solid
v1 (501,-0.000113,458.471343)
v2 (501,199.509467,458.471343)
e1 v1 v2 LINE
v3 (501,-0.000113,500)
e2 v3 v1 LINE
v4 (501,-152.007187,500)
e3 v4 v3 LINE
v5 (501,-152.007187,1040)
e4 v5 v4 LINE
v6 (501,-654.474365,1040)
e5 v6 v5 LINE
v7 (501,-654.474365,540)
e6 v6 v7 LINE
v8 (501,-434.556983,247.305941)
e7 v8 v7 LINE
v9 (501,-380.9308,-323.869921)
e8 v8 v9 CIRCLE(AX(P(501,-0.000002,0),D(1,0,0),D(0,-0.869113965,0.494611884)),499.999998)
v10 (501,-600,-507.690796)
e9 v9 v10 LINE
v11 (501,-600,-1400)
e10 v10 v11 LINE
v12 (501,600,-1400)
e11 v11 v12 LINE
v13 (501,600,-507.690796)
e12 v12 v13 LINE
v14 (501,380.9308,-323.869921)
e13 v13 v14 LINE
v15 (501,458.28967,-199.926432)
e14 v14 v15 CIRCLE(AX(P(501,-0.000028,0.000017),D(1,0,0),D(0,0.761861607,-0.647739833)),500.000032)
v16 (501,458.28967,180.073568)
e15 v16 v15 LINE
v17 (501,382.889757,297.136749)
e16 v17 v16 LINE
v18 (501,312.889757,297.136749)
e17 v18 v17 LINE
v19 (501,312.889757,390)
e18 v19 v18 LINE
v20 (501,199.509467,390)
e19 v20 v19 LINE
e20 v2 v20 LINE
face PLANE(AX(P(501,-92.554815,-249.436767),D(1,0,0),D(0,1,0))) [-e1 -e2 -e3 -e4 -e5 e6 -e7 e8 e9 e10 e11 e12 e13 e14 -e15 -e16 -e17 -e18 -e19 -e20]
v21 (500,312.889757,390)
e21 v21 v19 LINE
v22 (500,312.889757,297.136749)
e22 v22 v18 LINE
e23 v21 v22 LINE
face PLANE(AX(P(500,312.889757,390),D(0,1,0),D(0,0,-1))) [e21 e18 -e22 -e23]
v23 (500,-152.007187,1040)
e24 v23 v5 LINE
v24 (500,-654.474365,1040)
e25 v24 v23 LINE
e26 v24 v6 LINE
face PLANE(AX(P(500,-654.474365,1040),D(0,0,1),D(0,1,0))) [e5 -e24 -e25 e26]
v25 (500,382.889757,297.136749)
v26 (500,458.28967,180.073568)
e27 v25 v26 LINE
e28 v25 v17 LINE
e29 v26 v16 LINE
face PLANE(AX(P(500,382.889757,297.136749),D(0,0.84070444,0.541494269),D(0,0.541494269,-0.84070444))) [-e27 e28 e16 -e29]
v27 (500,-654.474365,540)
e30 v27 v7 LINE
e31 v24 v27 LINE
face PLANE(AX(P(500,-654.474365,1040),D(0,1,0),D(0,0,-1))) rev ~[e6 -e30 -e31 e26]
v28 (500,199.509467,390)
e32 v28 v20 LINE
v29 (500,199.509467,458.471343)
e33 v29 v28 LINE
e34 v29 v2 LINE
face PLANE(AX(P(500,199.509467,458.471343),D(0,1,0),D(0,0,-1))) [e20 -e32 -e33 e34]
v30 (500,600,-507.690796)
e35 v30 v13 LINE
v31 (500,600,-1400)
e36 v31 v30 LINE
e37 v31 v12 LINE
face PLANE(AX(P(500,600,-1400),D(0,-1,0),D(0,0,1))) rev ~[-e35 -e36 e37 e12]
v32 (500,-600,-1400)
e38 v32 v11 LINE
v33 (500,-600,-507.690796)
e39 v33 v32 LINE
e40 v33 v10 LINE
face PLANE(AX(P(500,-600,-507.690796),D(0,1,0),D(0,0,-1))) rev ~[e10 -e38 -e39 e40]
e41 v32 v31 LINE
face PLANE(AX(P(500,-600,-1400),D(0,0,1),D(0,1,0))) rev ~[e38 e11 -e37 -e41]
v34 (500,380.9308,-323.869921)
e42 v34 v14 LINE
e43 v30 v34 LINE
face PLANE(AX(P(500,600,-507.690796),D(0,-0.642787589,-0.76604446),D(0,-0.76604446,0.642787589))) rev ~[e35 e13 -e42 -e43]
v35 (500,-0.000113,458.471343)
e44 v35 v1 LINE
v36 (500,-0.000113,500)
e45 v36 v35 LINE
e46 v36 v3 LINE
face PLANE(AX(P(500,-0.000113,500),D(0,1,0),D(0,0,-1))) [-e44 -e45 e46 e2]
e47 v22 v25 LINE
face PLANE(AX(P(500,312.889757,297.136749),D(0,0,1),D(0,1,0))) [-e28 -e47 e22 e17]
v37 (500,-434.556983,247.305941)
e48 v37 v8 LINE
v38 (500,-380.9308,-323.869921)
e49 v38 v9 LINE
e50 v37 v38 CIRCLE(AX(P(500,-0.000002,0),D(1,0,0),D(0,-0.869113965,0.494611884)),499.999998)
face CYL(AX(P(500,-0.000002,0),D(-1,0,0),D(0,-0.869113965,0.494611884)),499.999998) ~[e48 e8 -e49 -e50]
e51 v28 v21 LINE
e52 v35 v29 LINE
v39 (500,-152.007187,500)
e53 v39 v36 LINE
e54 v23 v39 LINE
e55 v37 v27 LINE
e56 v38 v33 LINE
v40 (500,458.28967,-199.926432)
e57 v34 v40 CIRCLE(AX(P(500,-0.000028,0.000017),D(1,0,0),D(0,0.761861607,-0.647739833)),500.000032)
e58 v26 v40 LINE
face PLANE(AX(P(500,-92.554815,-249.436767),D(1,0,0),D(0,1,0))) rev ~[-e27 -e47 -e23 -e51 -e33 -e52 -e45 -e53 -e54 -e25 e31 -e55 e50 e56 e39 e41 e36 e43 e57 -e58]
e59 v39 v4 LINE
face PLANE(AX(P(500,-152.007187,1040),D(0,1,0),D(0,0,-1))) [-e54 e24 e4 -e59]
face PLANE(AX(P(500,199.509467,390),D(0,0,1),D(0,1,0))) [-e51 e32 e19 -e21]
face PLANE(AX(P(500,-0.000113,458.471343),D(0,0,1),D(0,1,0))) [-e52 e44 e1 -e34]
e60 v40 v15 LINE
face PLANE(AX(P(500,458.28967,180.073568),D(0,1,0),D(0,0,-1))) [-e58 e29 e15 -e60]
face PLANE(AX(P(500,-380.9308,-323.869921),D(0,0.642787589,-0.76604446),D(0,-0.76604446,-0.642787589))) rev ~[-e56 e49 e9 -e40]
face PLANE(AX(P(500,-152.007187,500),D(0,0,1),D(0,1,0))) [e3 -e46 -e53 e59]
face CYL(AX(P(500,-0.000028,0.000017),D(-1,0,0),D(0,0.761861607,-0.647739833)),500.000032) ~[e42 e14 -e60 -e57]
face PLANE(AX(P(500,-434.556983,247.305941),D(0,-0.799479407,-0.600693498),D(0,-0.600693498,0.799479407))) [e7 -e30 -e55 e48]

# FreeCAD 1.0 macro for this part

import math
import FreeCAD as App
import Part
import Sketcher

V = App.Vector
Q = App.Units.Quantity

doc = App.newDocument("Part")
body = doc.addObject("PartDesign::Body", "Body")

sketch1 = doc.addObject("Sketcher::SketchObject", "Sketch")
body.addObject(sketch1)
sketch1.AttachmentSupport = (doc.YZ_Plane, [""])
sketch1.MapMode = "FlatFace"
sketch1.AttachmentOffset = App.Placement(V(0, 0, 500), App.Rotation())
sketch1.addGeometry(Part.ArcOfCircle(Part.Circle(V(0, 0, 0), V(0, 0, 1), 500), math.radians(150), math.radians(220)), False)
sketch1.addGeometry(Part.LineSegment(V(-381, -324, 0), V(-600, -508, 0)), False)
sketch1.addGeometry(Part.LineSegment(V(-600, -508, 0), V(-600, -1400, 0)), False)
sketch1.addGeometry(Part.LineSegment(V(-600, -1400, 0), V(600, -1400, 0)), False)
sketch1.addGeometry(Part.LineSegment(V(600, -1400, 0), V(600, -508, 0)), False)
sketch1.addGeometry(Part.LineSegment(V(600, -508, 0), V(381, -324, 0)), False)
sketch1.addGeometry(Part.ArcOfCircle(Part.Circle(V(0, 0, 0), V(0, 0, 1), 500), math.radians(-40.37), math.radians(-23.57)), False)
sketch1.addGeometry(Part.LineSegment(V(458, -200, 0), V(458, 180, 0)), False)
sketch1.addGeometry(Part.LineSegment(V(458, 180, 0), V(383, 297, 0)), False)
sketch1.addGeometry(Part.LineSegment(V(383, 297, 0), V(313, 297, 0)), False)
sketch1.addGeometry(Part.LineSegment(V(313, 297, 0), V(313, 390, 0)), False)
sketch1.addGeometry(Part.LineSegment(V(313, 390, 0), V(200, 390, 0)), False)
sketch1.addGeometry(Part.LineSegment(V(200, 390, 0), V(200, 458, 0)), False)
sketch1.addGeometry(Part.LineSegment(V(200, 458, 0), V(0, 458, 0)), False)
sketch1.addGeometry(Part.LineSegment(V(0, 458, 0), V(0, 500, 0)), False)
sketch1.addGeometry(Part.LineSegment(V(0, 500, 0), V(-152, 500, 0)), False)
sketch1.addGeometry(Part.LineSegment(V(-152, 500, 0), V(-152, 1040, 0)), False)
sketch1.addGeometry(Part.LineSegment(V(-152, 1040, 0), V(-654, 1040, 0)), False)
sketch1.addGeometry(Part.LineSegment(V(-654, 1040, 0), V(-654, 540, 0)), False)
sketch1.addGeometry(Part.LineSegment(V(-654, 540, 0), V(-435, 247, 0)), False)
sketch1.addConstraint(Sketcher.Constraint("Coincident", 0, 2, 1, 1))
sketch1.addConstraint(Sketcher.Constraint("Coincident", 1, 2, 2, 1))
sketch1.addConstraint(Sketcher.Constraint("Coincident", 2, 2, 3, 1))
sketch1.addConstraint(Sketcher.Constraint("Coincident", 3, 2, 4, 1))
sketch1.addConstraint(Sketcher.Constraint("Coincident", 4, 2, 5, 1))
sketch1.addConstraint(Sketcher.Constraint("Coincident", 5, 2, 6, 1))
sketch1.addConstraint(Sketcher.Constraint("Coincident", 6, 2, 7, 1))
sketch1.addConstraint(Sketcher.Constraint("Coincident", 7, 2, 8, 1))
sketch1.addConstraint(Sketcher.Constraint("Coincident", 8, 2, 9, 1))
sketch1.addConstraint(Sketcher.Constraint("Coincident", 9, 2, 10, 1))
sketch1.addConstraint(Sketcher.Constraint("Coincident", 10, 2, 11, 1))
sketch1.addConstraint(Sketcher.Constraint("Coincident", 11, 2, 12, 1))
sketch1.addConstraint(Sketcher.Constraint("Coincident", 12, 2, 13, 1))
sketch1.addConstraint(Sketcher.Constraint("Coincident", 13, 2, 14, 1))
sketch1.addConstraint(Sketcher.Constraint("Coincident", 14, 2, 15, 1))
sketch1.addConstraint(Sketcher.Constraint("Coincident", 15, 2, 16, 1))
sketch1.addConstraint(Sketcher.Constraint("Coincident", 16, 2, 17, 1))
sketch1.addConstraint(Sketcher.Constraint("Coincident", 17, 2, 18, 1))
sketch1.addConstraint(Sketcher.Constraint("Coincident", 18, 2, 19, 1))
sketch1.addConstraint(Sketcher.Constraint("Coincident", 19, 2, 0, 1))
sketch1.addConstraint(Sketcher.Constraint("Vertical", 2))
sketch1.addConstraint(Sketcher.Constraint("Horizontal", 3))
sketch1.addConstraint(Sketcher.Constraint("Vertical", 4))
sketch1.addConstraint(Sketcher.Constraint("Vertical", 7))
sketch1.addConstraint(Sketcher.Constraint("Horizontal", 9))
sketch1.addConstraint(Sketcher.Constraint("Vertical", 10))
sketch1.addConstraint(Sketcher.Constraint("Horizontal", 11))
sketch1.addConstraint(Sketcher.Constraint("Vertical", 12))
sketch1.addConstraint(Sketcher.Constraint("Horizontal", 13))
sketch1.addConstraint(Sketcher.Constraint("Vertical", 14))
sketch1.addConstraint(Sketcher.Constraint("Horizontal", 15))
sketch1.addConstraint(Sketcher.Constraint("Vertical", 16))
sketch1.addConstraint(Sketcher.Constraint("Horizontal", 17))
sketch1.addConstraint(Sketcher.Constraint("Vertical", 18))
sketch1.addConstraint(Sketcher.Constraint("Coincident", 0, 3, -1, 1))
sketch1.addConstraint(Sketcher.Constraint("Symmetric", 1, 2, 4, 2, -2))
sketch1.addConstraint(Sketcher.Constraint("Symmetric", 0, 2, 5, 2, -2))
sketch1.addConstraint(Sketcher.Constraint("Radius", 0, Q("499.999998 mm")))
sketch1.addConstraint(Sketcher.Constraint("DistanceX", 3, 1, 3, 2, Q("1200 mm")))
sketch1.addConstraint(Sketcher.Constraint("DistanceX", 9, 2, 9, 1, Q("70 mm")))
sketch1.addConstraint(Sketcher.Constraint("DistanceY", 7, 1, 7, 2, Q("380 mm")))
sketch1.addConstraint(Sketcher.Constraint("DistanceY", 16, 1, 16, 2, Q("540 mm")))
sketch1.addConstraint(Sketcher.Constraint("DistanceY", 18, 2, 18, 1, Q("500 mm")))
sketch1.addConstraint(Sketcher.Constraint("Angle", 1, Q("-140.000002 deg")))
sketch1.addConstraint(Sketcher.Constraint("DistanceY", 2, 2, -1, 1, Q("1400 mm")))
sketch1.addConstraint(Sketcher.Constraint("DistanceY", -1, 1, 10, 2, Q("390 mm")))
sketch1.addConstraint(Sketcher.Constraint("DistanceY", -1, 1, 14, 2, Q("500 mm")))
sketch1.addConstraint(Sketcher.Constraint("Radius", 6, Q("500.000032 mm")))
sketch1.addConstraint(Sketcher.Constraint("DistanceX", 11, 2, 11, 1, Q("113.38029 mm")))
sketch1.addConstraint(Sketcher.Constraint("DistanceX", 13, 2, 13, 1, Q("199.50958 mm")))
sketch1.addConstraint(Sketcher.Constraint("DistanceX", 17, 2, 17, 1, Q("502.467178 mm")))
sketch1.addConstraint(Sketcher.Constraint("DistanceY", 10, 1, 10, 2, Q("92.863251 mm")))
sketch1.addConstraint(Sketcher.Constraint("DistanceX", -1, 1, 5, 2, Q("380.9308 mm")))
sketch1.addConstraint(Sketcher.Constraint("DistanceX", 6, 3, 6, 2, Q("458.289698 mm")))
sketch1.addConstraint(Sketcher.Constraint("DistanceY", 19, 2, 13, 2, Q("211.165402 mm")))
sketch1.addConstraint(Sketcher.Constraint("DistanceX", 15, 2, 15, 1, Q("152.007074 mm")))
sketch1.addConstraint(Sketcher.Constraint("DistanceY", 12, 1, 12, 2, Q("68.471343 mm")))
sketch1.addConstraint(Sketcher.Constraint("DistanceX", -1, 1, 7, 2, Q("458.28967 mm")))
sketch1.addConstraint(Sketcher.Constraint("DistanceX", 0, 3, 8, 2, Q("382.889759 mm")))
pad1 = doc.addObject("PartDesign::Pad", "Pad")
body.addObject(pad1)
pad1.Profile = sketch1
pad1.Length = 1

doc.recompute()
